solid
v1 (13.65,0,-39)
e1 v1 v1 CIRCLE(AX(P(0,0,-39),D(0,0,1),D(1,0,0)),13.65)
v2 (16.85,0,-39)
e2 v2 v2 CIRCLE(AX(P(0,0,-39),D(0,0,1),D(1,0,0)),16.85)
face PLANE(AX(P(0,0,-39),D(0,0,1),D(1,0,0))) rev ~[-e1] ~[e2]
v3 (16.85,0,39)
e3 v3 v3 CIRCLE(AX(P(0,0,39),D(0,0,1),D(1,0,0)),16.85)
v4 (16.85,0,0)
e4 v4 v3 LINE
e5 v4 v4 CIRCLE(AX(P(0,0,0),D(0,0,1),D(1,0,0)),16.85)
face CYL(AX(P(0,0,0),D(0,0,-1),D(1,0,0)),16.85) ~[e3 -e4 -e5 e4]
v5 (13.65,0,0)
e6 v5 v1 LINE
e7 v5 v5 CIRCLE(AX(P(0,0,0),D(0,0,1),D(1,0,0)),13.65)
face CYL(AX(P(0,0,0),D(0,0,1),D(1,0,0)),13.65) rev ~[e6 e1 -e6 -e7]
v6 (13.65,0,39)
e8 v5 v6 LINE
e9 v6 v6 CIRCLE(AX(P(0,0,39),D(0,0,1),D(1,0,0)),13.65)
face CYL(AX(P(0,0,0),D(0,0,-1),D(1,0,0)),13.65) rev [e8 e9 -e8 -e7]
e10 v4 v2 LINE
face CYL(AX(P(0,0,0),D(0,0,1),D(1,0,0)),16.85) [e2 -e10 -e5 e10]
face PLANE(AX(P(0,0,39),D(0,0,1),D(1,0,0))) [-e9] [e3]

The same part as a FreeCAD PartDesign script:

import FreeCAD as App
import Part
import Sketcher

V = App.Vector
Q = App.Units.Quantity

doc = App.newDocument("Part")
params = doc.addObject("Spreadsheet::Sheet", "Params")
for row, (alias, value) in enumerate([
    ("sketch1_diameter", "33.7 mm"),
    ("sketch1_diameter2", "27.3 mm"),
    ("pad1_length", "78 mm"),
], start=1):
    params.set(f"A{row}", alias)
    params.set(f"B{row}", "=" + value)
    params.setAlias(f"B{row}", alias)

body = doc.addObject("PartDesign::Body", "Body")

# Sketch on XY plane
sketch1 = body.newObject("Sketcher::SketchObject", "Sketch")
sketch1.AttachmentSupport = (doc.getObject("XY_Plane"), [""])
sketch1.MapMode = "FlatFace"
sketch1.addGeometry(Part.Circle(V(0, 0, 0), V(0, 0, 1), 17), False)
sketch1.addGeometry(Part.Circle(V(0, 0, 0), V(0, 0, 1), 14), False)
sketch1.addConstraint(Sketcher.Constraint("Coincident", 0, 3, -1, 1))
sketch1.addConstraint(Sketcher.Constraint("Coincident", 1, 3, -1, 1))
sketch1.addConstraint(Sketcher.Constraint("Diameter", 0, Q("33.7 mm")))
sketch1.addConstraint(Sketcher.Constraint("Diameter", 1, Q("27.3 mm")))
sketch1.setExpression("Constraints[2]", "Params.sketch1_diameter")
sketch1.setExpression("Constraints[3]", "Params.sketch1_diameter2")
pad1 = body.newObject("PartDesign::Pad", "Pad")
pad1.Profile = sketch1
pad1.setExpression("Length", "Params.pad1_length")
pad1.Midplane = True

doc.recompute()
